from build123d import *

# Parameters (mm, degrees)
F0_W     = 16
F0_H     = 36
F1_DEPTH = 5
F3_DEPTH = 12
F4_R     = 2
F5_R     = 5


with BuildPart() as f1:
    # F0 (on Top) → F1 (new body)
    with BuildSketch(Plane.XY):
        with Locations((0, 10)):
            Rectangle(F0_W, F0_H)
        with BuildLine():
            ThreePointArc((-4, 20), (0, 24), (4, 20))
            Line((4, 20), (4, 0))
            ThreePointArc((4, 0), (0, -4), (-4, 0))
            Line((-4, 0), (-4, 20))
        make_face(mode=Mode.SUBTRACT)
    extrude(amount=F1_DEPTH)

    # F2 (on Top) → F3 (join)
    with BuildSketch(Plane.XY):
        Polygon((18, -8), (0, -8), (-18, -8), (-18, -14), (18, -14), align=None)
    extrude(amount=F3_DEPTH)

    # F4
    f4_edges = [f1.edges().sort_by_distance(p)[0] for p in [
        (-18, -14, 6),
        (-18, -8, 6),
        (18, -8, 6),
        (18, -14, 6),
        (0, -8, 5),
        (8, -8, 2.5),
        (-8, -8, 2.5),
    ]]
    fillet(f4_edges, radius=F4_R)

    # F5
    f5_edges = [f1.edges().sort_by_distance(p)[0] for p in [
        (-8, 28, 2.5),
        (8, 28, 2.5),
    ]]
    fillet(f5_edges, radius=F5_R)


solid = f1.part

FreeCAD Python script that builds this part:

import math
import FreeCAD as App
import Part
import Sketcher
Q = App.Units.Quantity


def edges_at(feature, points):
    """Names of the edges that pass closest to the given points."""
    edges = feature.Shape.Edges
    near = lambda p: min(range(len(edges)), key=lambda i: edges[i].distToShape(Part.Vertex(*p))[0])
    return sorted({f"Edge{near(p) + 1}" for p in points})


def add_polygon(sketch, points):
    """Adds a closed chain of lines whose ends are joined by coincident constraints."""
    first, n = sketch.GeometryCount, len(points)
    for a, b in zip(points, points[1:] + points[:1]):
        sketch.addGeometry(Part.LineSegment(App.Vector(*a, 0), App.Vector(*b, 0)), False)
    for i in range(n):
        sketch.addConstraint(Sketcher.Constraint("Coincident", first + i, 2, first + (i + 1) % n, 1))

doc = App.newDocument("Part")
body = doc.addObject("PartDesign::Body", "Body")

# Sketch on XY plane
sketch1 = doc.addObject("Sketcher::SketchObject", "Sketch")
body.addObject(sketch1)
sketch1.AttachmentSupport = (doc.XY_Plane, [""])
sketch1.MapMode = "FlatFace"
add_polygon(sketch1, [(-8, 28), (-8, -8), (8, -8), (8, 28)])  # lines 0-3
sketch1.addGeometry(Part.LineSegment(App.Vector(-4, 0, 0), App.Vector(-4, 20, 0)), False)  # 4
sketch1.addGeometry(Part.ArcOfCircle(Part.Circle(App.Vector(0, 20, 0), App.Vector(0, 0, 1), 4), math.radians(0), math.radians(180)), False)  # 5
sketch1.addGeometry(Part.LineSegment(App.Vector(4, 20, 0), App.Vector(4, 0, 0)), False)  # 6
sketch1.addGeometry(Part.ArcOfCircle(Part.Circle(App.Vector(0, 0, 0), App.Vector(0, 0, 1), 4), math.radians(180), math.radians(360)), False)  # 7
sketch1.addConstraint(Sketcher.Constraint("Tangent", 4, 2, 5, 2))
sketch1.addConstraint(Sketcher.Constraint("Tangent", 5, 1, 6, 1))
sketch1.addConstraint(Sketcher.Constraint("Tangent", 6, 2, 7, 2))
sketch1.addConstraint(Sketcher.Constraint("Tangent", 7, 1, 4, 1))
sketch1.addConstraint(Sketcher.Constraint("Vertical", 0))
sketch1.addConstraint(Sketcher.Constraint("Horizontal", 1))
sketch1.addConstraint(Sketcher.Constraint("Vertical", 2))
sketch1.addConstraint(Sketcher.Constraint("Horizontal", 3))
sketch1.addConstraint(Sketcher.Constraint("Vertical", 4))
sketch1.addConstraint(Sketcher.Constraint("Vertical", 6))
sketch1.addConstraint(Sketcher.Constraint("Coincident", 7, 3, -1, 1))
sketch1.addConstraint(Sketcher.Constraint("Radius", 5, Q("4 mm")))
sketch1.addConstraint(Sketcher.Constraint("DistanceX", 1, 1, 1, 2, Q("16 mm")))
sketch1.addConstraint(Sketcher.Constraint("DistanceY", 0, 2, 0, 1, Q("36 mm")))
sketch1.addConstraint(Sketcher.Constraint("DistanceY", 4, 1, 4, 2, Q("20 mm")))
sketch1.addConstraint(Sketcher.Constraint("DistanceX", 0, 2, -1, 1, Q("8 mm")))
sketch1.addConstraint(Sketcher.Constraint("DistanceY", 0, 2, -1, 1, Q("8 mm")))
pad1 = doc.addObject("PartDesign::Pad", "Pad")
body.addObject(pad1)
pad1.Profile = sketch1
pad1.Length = 5

# Sketch on XY plane
sketch2 = doc.addObject("Sketcher::SketchObject", "Sketch001")
body.addObject(sketch2)
sketch2.AttachmentSupport = (doc.XY_Plane, [""])
sketch2.MapMode = "FlatFace"
add_polygon(sketch2, [(18, -8), (-18, -8), (-18, -14), (18, -14)])  # lines 0-3
sketch2.addConstraint(Sketcher.Constraint("Horizontal", 0))
sketch2.addConstraint(Sketcher.Constraint("Vertical", 1))
sketch2.addConstraint(Sketcher.Constraint("Horizontal", 2))
sketch2.addConstraint(Sketcher.Constraint("Vertical", 3))
sketch2.addConstraint(Sketcher.Constraint("DistanceX", 0, 2, 0, 1, Q("36 mm")))
sketch2.addConstraint(Sketcher.Constraint("DistanceY", 1, 2, 1, 1, Q("6 mm")))
sketch2.addConstraint(Sketcher.Constraint("DistanceX", 0, 2, -1, 1, Q("18 mm")))
sketch2.addConstraint(Sketcher.Constraint("DistanceY", 0, 2, -1, 1, Q("8 mm")))
pad2 = doc.addObject("PartDesign::Pad", "Pad001")
body.addObject(pad2)
pad2.Profile = sketch2
pad2.Length = 12
doc.recompute()

fillet = doc.addObject("PartDesign::Fillet", "Fillet")
body.addObject(fillet)
fillet.Base = (pad2, edges_at(pad2, [
    (-18, -14, 6),
    (-18, -8, 6),
    (18, -8, 6),
    (18, -14, 6),
    (0, -8, 5),
    (8, -8, 2.5),
    (-8, -8, 2.5),
]))
fillet.Radius = 2
doc.recompute()

fillet2 = doc.addObject("PartDesign::Fillet", "Fillet001")
body.addObject(fillet2)
fillet2.Base = (fillet, edges_at(fillet, [(-8, 28, 2.5), (8, 28, 2.5)]))
fillet2.Radius = 5

doc.recompute()
